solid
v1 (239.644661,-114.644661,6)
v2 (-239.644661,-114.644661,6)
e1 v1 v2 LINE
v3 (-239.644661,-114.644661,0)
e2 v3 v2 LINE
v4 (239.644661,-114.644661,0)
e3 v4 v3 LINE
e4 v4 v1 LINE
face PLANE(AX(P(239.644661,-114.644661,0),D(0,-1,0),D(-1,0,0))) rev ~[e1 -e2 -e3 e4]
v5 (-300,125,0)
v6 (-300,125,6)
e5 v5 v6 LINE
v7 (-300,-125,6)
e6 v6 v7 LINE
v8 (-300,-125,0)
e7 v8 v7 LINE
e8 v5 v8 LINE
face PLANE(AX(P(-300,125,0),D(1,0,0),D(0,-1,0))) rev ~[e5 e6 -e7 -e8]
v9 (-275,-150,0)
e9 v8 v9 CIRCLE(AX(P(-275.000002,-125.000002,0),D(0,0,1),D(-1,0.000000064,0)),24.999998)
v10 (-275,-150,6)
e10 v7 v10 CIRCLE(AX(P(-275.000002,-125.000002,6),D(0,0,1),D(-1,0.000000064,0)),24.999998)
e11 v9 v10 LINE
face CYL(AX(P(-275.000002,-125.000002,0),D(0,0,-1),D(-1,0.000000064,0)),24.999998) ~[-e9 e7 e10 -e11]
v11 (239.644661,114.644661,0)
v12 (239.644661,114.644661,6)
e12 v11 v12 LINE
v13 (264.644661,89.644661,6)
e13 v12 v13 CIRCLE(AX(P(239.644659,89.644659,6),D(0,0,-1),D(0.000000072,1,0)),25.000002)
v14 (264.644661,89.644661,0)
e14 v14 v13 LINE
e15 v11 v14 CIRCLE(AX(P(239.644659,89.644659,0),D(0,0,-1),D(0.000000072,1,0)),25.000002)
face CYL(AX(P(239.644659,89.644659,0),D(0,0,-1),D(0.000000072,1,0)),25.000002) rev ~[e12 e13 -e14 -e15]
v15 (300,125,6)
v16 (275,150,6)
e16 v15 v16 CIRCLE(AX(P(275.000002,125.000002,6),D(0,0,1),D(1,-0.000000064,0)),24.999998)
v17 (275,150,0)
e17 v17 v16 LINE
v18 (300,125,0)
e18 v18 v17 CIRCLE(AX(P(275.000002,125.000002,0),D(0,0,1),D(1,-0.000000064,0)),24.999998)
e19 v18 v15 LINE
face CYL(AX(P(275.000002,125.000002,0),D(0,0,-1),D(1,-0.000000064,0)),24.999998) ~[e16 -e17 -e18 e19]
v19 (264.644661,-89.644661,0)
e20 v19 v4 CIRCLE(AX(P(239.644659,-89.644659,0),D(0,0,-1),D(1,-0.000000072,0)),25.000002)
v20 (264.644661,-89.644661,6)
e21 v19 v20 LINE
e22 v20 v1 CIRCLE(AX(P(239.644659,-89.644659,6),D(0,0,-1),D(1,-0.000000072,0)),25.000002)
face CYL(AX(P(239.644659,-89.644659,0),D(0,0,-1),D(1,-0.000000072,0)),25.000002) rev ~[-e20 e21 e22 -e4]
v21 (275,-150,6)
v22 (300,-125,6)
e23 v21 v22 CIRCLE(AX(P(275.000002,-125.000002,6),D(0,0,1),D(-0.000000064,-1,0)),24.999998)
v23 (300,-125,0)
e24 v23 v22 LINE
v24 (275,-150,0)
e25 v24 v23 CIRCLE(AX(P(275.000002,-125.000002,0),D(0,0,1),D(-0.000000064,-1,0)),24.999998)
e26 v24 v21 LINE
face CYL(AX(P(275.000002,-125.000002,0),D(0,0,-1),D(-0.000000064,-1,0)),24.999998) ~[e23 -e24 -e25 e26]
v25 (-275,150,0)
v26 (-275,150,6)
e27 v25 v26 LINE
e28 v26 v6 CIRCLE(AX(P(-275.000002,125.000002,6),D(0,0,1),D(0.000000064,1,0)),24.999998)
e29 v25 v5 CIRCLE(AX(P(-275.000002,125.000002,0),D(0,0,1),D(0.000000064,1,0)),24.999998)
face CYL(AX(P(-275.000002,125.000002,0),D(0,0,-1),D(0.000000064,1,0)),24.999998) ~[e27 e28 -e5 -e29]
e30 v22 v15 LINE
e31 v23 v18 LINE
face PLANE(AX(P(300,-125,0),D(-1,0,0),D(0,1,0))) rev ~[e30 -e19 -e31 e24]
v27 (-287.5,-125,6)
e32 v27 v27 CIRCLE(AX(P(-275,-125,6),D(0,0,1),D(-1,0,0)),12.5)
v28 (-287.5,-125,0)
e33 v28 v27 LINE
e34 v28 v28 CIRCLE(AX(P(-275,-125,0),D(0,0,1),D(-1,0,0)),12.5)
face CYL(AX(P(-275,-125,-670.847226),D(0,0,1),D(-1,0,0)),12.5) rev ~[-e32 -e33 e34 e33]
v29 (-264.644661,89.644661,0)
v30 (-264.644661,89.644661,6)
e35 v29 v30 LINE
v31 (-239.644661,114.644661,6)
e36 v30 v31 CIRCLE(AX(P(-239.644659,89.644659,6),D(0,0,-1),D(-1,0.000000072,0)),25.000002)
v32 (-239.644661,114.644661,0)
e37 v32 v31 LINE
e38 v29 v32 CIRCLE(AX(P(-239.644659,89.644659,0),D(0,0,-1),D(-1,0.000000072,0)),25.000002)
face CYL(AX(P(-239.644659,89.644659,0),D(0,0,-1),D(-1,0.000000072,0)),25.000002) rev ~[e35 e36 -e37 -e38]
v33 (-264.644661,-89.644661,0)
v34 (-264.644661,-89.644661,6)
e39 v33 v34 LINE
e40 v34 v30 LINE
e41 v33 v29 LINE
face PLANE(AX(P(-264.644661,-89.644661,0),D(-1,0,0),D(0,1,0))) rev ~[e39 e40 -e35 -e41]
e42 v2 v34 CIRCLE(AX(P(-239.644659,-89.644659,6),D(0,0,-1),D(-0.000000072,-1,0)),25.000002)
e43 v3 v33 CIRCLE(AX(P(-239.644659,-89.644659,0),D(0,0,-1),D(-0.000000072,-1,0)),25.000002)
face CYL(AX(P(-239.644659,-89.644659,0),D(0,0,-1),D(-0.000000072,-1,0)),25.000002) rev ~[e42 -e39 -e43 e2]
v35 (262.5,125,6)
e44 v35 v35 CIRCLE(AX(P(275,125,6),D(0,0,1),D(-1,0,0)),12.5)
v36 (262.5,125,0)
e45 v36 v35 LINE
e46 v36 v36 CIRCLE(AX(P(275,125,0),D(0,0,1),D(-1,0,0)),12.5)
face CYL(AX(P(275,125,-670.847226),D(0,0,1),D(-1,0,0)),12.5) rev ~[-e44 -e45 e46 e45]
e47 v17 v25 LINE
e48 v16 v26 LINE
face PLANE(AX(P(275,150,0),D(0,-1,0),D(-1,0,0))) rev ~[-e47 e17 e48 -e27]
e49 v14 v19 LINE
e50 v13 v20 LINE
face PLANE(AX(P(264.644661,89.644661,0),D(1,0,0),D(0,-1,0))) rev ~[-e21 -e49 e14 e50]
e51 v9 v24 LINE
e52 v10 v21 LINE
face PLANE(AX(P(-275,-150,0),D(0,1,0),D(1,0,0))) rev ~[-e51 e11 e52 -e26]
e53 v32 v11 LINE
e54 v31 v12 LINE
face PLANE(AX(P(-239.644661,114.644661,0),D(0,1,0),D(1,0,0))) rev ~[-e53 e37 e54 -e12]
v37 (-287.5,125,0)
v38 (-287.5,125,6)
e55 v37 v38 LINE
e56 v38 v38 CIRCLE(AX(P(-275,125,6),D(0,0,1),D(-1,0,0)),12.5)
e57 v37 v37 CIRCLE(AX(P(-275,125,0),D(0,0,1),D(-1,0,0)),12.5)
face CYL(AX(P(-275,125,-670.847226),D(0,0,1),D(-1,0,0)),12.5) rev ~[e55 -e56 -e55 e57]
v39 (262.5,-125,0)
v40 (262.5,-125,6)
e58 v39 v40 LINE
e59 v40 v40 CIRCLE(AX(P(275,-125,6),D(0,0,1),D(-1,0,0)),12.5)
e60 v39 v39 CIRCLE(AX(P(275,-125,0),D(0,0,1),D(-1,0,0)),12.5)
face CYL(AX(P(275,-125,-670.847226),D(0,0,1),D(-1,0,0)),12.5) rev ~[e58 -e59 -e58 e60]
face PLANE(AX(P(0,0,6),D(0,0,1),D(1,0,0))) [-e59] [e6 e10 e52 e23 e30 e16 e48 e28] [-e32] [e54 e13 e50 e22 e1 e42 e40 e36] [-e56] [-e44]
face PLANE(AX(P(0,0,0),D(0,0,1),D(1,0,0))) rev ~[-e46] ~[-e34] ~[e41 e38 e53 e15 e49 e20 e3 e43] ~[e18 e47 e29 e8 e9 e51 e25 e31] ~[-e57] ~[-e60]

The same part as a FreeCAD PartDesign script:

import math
import FreeCAD as App
import Part
import Sketcher
from FreeCAD import Vector

doc = App.newDocument("Part")
body = doc.addObject("PartDesign::Body", "Body")

# Sketch on XY plane
sketch1 = body.newObject("Sketcher::SketchObject", "Sketch")
sketch1.AttachmentSupport = (doc.getObject("XY_Plane"), [""])
sketch1.MapMode = "FlatFace"
sketch1.addGeometry([
    Part.LineSegment(Vector(-275, -150, 0), Vector(275, -150, 0)),  # 0
    Part.ArcOfCircle(Part.Circle(Vector(275, -125, 0), Vector(0, 0, 1), 25), math.radians(-90), math.radians(0)),  # 1
    Part.LineSegment(Vector(300, -125, 0), Vector(300, 125, 0)),  # 2
    Part.ArcOfCircle(Part.Circle(Vector(275, 125, 0), Vector(0, 0, 1), 25), math.radians(0), math.radians(90)),  # 3
    Part.LineSegment(Vector(275, 150, 0), Vector(-275, 150, 0)),  # 4
    Part.ArcOfCircle(Part.Circle(Vector(-275, 125, 0), Vector(0, 0, 1), 25), math.radians(90), math.radians(180)),  # 5
    Part.LineSegment(Vector(-300, 125, 0), Vector(-300, -125, 0)),  # 6
    Part.ArcOfCircle(Part.Circle(Vector(-275, -125, 0), Vector(0, 0, 1), 25), math.radians(180), math.radians(270)),  # 7
    Part.LineSegment(Vector(265, 90, 0), Vector(265, -90, 0)),  # 8
    Part.ArcOfCircle(Part.Circle(Vector(240, -90, 0), Vector(0, 0, 1), 25), math.radians(-90), math.radians(0)),  # 9
    Part.LineSegment(Vector(240, -115, 0), Vector(-240, -115, 0)),  # 10
    Part.ArcOfCircle(Part.Circle(Vector(-240, -90, 0), Vector(0, 0, 1), 25), math.radians(-180), math.radians(-90)),  # 11
    Part.LineSegment(Vector(-265, -90, 0), Vector(-265, 90, 0)),  # 12
    Part.ArcOfCircle(Part.Circle(Vector(-240, 90, 0), Vector(0, 0, 1), 25), math.radians(90), math.radians(180)),  # 13
    Part.LineSegment(Vector(-240, 115, 0), Vector(240, 115, 0)),  # 14
    Part.ArcOfCircle(Part.Circle(Vector(240, 90, 0), Vector(0, 0, 1), 25), math.radians(0), math.radians(90)),  # 15
], False)
sketch1.addConstraint([
    Sketcher.Constraint("Tangent", 0, 2, 1, 1),
    Sketcher.Constraint("Tangent", 1, 2, 2, 1),
    Sketcher.Constraint("Tangent", 2, 2, 3, 1),
    Sketcher.Constraint("Tangent", 3, 2, 4, 1),
    Sketcher.Constraint("Tangent", 4, 2, 5, 1),
    Sketcher.Constraint("Tangent", 5, 2, 6, 1),
    Sketcher.Constraint("Tangent", 6, 2, 7, 1),
    Sketcher.Constraint("Tangent", 7, 2, 0, 1),
    Sketcher.Constraint("Tangent", 8, 2, 9, 2),
    Sketcher.Constraint("Tangent", 9, 1, 10, 1),
    Sketcher.Constraint("Tangent", 10, 2, 11, 2),
    Sketcher.Constraint("Tangent", 11, 1, 12, 1),
    Sketcher.Constraint("Tangent", 12, 2, 13, 2),
    Sketcher.Constraint("Tangent", 13, 1, 14, 1),
    Sketcher.Constraint("Tangent", 14, 2, 15, 2),
    Sketcher.Constraint("Tangent", 15, 1, 8, 1),
    Sketcher.Constraint("Horizontal", 0),
    Sketcher.Constraint("Vertical", 2),
    Sketcher.Constraint("Horizontal", 4),
    Sketcher.Constraint("Vertical", 6),
    Sketcher.Constraint("Vertical", 8),
    Sketcher.Constraint("Horizontal", 10),
    Sketcher.Constraint("Vertical", 12),
    Sketcher.Constraint("Horizontal", 14),
    Sketcher.Constraint("Equal", 1, 3),
    Sketcher.Constraint("Equal", 3, 5),
    Sketcher.Constraint("Equal", 5, 7),
    Sketcher.Constraint("Equal", 9, 11),
    Sketcher.Constraint("Equal", 11, 13),
    Sketcher.Constraint("Equal", 13, 15),
    Sketcher.Constraint("Symmetric", 1, 3, 5, 3, -1, 1),
    Sketcher.Constraint("Symmetric", 9, 3, 13, 3, -1, 1),
    Sketcher.Constraint("Radius", 1, 24.999998),
    Sketcher.Constraint("Radius", 9, 25.000002),
    Sketcher.Constraint("DistanceX", 0, 1, 0, 2, 550.0),
    Sketcher.Constraint("DistanceY", 2, 1, 2, 2, 250.0),
    Sketcher.Constraint("DistanceY", 8, 2, 8, 1, 179.289322),
    Sketcher.Constraint("DistanceX", 10, 2, 10, 1, 479.289322),
])
pad1 = body.newObject("PartDesign::Pad", "Pad")
pad1.Profile = sketch1
pad1.Length = 6

# Sketch on XY plane
sketch2 = body.newObject("Sketcher::SketchObject", "Sketch001")
sketch2.AttachmentSupport = (doc.getObject("XY_Plane"), [""])
sketch2.MapMode = "FlatFace"
sketch2.addGeometry(Part.Circle(Vector(-275, 125, 0), Vector(0, 0, 1), 12), False)
sketch2.addConstraint([
    Sketcher.Constraint("Diameter", 0, 25.0),
    Sketcher.Constraint("DistanceX", 0, 3, -1, 1, 275.0),
    Sketcher.Constraint("DistanceY", -1, 1, 0, 3, 125.0),
])
doc.recompute()
hole = body.newObject("PartDesign::Hole", "Hole")
hole.Profile = sketch2
hole.ThreadType = "None"
hole.Diameter = 25
hole.DepthType = "ThroughAll"
hole.Reversed = True

# Sketch on XY plane
sketch3 = body.newObject("Sketcher::SketchObject", "Sketch002")
sketch3.AttachmentSupport = (doc.getObject("XY_Plane"), [""])
sketch3.MapMode = "FlatFace"
sketch3.addGeometry([
    Part.Circle(Vector(-275, -125, 0), Vector(0, 0, 1), 12),
    Part.Circle(Vector(275, 125, 0), Vector(0, 0, 1), 12),
], False)
sketch3.addConstraint([
    Sketcher.Constraint("Equal", 0, 1),
    Sketcher.Constraint("Symmetric", 0, 3, 1, 3, -1, 1),
    Sketcher.Constraint("Diameter", 0, 25.0),
    Sketcher.Constraint("DistanceX", 0, 3, -1, 1, 275.0),
    Sketcher.Constraint("DistanceY", 0, 3, -1, 1, 125.0),
])
doc.recompute()
hole2 = body.newObject("PartDesign::Hole", "Hole001")
hole2.Profile = sketch3
hole2.ThreadType = "None"
hole2.Diameter = 25
hole2.DepthType = "ThroughAll"
hole2.Reversed = True

# Sketch on XY plane
sketch4 = body.newObject("Sketcher::SketchObject", "Sketch003")
sketch4.AttachmentSupport = (doc.getObject("XY_Plane"), [""])
sketch4.MapMode = "FlatFace"
sketch4.addGeometry(Part.Circle(Vector(275, -125, 0), Vector(0, 0, 1), 12), False)
sketch4.addConstraint([
    Sketcher.Constraint("Diameter", 0, 25.0),
    Sketcher.Constraint("DistanceX", -1, 1, 0, 3, 275.0),
    Sketcher.Constraint("DistanceY", 0, 3, -1, 1, 125.0),
])
doc.recompute()
hole3 = body.newObject("PartDesign::Hole", "Hole002")
hole3.Profile = sketch4
hole3.ThreadType = "None"
hole3.Diameter = 25
hole3.DepthType = "ThroughAll"
hole3.Reversed = True

doc.recompute()
